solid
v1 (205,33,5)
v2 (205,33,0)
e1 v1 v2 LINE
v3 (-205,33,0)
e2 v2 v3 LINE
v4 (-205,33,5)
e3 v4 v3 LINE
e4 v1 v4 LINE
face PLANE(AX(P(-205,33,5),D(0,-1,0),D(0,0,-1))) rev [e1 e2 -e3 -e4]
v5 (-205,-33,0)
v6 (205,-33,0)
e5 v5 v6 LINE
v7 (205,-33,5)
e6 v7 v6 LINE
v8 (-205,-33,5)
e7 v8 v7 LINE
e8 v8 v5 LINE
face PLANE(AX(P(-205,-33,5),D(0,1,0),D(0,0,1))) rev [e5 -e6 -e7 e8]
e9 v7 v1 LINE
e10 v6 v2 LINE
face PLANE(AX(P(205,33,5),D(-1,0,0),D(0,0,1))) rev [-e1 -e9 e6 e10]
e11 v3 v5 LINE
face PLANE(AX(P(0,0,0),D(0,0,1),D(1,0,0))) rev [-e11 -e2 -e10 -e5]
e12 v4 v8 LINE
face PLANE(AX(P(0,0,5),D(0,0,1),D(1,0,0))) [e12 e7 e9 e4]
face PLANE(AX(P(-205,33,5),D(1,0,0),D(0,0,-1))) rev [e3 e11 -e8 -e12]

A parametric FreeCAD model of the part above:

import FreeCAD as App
import Part
import Sketcher


def add_polygon(sketch, points):
    """Adds a closed chain of lines whose ends are joined by coincident constraints."""
    first, n = sketch.GeometryCount, len(points)
    for a, b in zip(points, points[1:] + points[:1]):
        sketch.addGeometry(Part.LineSegment(App.Vector(*a, 0), App.Vector(*b, 0)), False)
    for i in range(n):
        sketch.addConstraint(Sketcher.Constraint("Coincident", first + i, 2, first + (i + 1) % n, 1))

doc = App.newDocument("Part")
body = doc.addObject("PartDesign::Body", "Body")

# Sketch on XY plane
sketch1 = doc.addObject("Sketcher::SketchObject", "Sketch")
body.addObject(sketch1)
sketch1.AttachmentSupport = (doc.XY_Plane, [""])
sketch1.MapMode = "FlatFace"
add_polygon(sketch1, [(-205, 33), (-205, -33), (205, -33), (205, 33)])  # lines 0-3
sketch1.addConstraint([
    Sketcher.Constraint("Vertical", 0),
    Sketcher.Constraint("Horizontal", 1),
    Sketcher.Constraint("Vertical", 2),
    Sketcher.Constraint("Horizontal", 3),
    Sketcher.Constraint("Symmetric", 0, 2, 2, 2, -1, 1),
    Sketcher.Constraint("DistanceX", 1, 1, 1, 2, 410.0),
    Sketcher.Constraint("DistanceY", 0, 2, 0, 1, 66.0),
])
pad1 = doc.addObject("PartDesign::Pad", "Pad")
body.addObject(pad1)
pad1.Profile = sketch1
pad1.Length = 5

doc.recompute()
